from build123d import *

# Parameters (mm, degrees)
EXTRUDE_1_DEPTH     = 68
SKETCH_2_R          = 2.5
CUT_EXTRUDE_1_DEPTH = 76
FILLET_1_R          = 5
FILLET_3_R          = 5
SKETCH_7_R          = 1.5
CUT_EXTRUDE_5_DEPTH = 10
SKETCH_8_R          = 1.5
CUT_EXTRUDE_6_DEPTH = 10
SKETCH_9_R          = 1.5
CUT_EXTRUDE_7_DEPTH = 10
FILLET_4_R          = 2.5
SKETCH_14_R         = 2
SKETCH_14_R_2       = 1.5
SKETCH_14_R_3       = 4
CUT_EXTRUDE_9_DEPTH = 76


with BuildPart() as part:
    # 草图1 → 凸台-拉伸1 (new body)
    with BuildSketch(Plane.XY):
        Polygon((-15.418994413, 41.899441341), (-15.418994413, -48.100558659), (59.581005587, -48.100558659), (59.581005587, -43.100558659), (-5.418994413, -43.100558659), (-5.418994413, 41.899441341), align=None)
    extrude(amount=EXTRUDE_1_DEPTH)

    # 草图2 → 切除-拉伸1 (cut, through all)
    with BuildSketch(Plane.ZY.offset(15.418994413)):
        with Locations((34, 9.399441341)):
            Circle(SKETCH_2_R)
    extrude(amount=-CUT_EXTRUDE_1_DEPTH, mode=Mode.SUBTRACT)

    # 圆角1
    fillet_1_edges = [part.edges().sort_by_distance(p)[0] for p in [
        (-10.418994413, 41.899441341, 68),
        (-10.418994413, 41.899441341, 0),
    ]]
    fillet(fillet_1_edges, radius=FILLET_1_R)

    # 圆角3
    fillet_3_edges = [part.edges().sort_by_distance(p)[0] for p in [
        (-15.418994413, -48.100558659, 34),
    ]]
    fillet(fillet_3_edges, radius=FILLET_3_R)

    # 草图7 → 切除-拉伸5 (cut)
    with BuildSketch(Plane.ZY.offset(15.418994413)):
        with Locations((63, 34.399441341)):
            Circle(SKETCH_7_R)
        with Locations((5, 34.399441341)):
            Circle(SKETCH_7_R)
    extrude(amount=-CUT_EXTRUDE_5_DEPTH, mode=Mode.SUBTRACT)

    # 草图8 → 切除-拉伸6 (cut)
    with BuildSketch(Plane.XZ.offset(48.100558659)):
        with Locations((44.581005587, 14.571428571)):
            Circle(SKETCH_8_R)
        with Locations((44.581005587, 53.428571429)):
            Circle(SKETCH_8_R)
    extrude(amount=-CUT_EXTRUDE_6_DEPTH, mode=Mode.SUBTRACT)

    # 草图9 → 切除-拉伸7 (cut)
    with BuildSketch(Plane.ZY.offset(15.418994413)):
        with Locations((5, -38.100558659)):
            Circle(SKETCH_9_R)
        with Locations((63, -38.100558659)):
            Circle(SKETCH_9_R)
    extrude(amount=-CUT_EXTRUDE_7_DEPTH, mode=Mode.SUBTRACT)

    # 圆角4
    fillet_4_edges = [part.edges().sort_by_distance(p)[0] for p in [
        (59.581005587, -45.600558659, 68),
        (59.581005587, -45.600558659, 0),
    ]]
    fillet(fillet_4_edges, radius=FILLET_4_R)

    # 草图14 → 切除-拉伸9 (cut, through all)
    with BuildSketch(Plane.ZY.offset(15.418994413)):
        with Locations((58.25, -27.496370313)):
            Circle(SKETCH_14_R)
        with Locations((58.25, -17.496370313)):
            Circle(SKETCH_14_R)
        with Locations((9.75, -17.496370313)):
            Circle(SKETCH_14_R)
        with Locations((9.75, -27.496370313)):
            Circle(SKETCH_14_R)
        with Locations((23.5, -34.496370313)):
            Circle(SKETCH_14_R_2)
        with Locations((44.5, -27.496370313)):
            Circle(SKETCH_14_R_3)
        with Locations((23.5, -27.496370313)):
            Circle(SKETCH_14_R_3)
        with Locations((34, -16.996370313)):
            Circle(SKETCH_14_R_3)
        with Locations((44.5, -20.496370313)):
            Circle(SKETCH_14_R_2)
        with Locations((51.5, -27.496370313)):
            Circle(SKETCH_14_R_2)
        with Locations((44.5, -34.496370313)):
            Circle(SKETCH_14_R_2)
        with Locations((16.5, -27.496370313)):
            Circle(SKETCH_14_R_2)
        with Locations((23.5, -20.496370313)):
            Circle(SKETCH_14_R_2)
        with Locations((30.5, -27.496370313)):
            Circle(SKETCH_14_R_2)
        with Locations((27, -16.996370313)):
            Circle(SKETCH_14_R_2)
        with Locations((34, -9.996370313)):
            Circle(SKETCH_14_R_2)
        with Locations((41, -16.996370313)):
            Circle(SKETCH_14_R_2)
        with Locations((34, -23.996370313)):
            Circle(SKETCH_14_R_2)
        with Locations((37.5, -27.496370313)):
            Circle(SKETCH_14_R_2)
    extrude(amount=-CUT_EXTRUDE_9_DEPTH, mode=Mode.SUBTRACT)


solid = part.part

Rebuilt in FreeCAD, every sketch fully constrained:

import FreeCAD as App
import Part
import Sketcher
Q = App.Units.Quantity


def edges_at(feature, points):
    """Names of the edges that pass closest to the given points."""
    edges = feature.Shape.Edges
    near = lambda p: min(range(len(edges)), key=lambda i: edges[i].distToShape(Part.Vertex(*p))[0])
    return sorted({f"Edge{near(p) + 1}" for p in points})


def add_polygon(sketch, points):
    """Adds a closed chain of lines whose ends are joined by coincident constraints."""
    first, n = sketch.GeometryCount, len(points)
    for a, b in zip(points, points[1:] + points[:1]):
        sketch.addGeometry(Part.LineSegment(App.Vector(*a, 0), App.Vector(*b, 0)), False)
    for i in range(n):
        sketch.addConstraint(Sketcher.Constraint("Coincident", first + i, 2, first + (i + 1) % n, 1))

doc = App.newDocument("Part")
params = doc.addObject("Spreadsheet::Sheet", "Params")
for row, (alias, value) in enumerate([
    ("sketch1_width", "75 mm"),
    ("sketch1_width2", "65 mm"),
    ("sketch1_height", "90 mm"),
    ("sketch1_height2", "5 mm"),
    ("pad1_length", "68 mm"),
    ("sketch2_diameter", "5 mm"),
    ("fillet_radius", "5 mm"),
    ("fillet2_radius", "5 mm"),
    ("sketch3_diameter", "3 mm"),
    ("pocket2_length", "10 mm"),
    ("sketch4_diameter", "3 mm"),
    ("pocket3_length", "10 mm"),
    ("sketch5_diameter", "3 mm"),
    ("pocket4_length", "10 mm"),
    ("fillet3_radius", "2.5 mm"),
    ("sketch6_diameter", "4 mm"),
    ("sketch6_diameter2", "3 mm"),
    ("sketch6_diameter3", "8 mm"),
], start=1):
    params.set(f"A{row}", alias)
    params.set(f"B{row}", "=" + value)
    params.setAlias(f"B{row}", alias)

body = doc.addObject("PartDesign::Body", "Body")

# Sketch on XY plane
sketch1 = body.newObject("Sketcher::SketchObject", "Sketch")
sketch1.AttachmentSupport = (doc.getObject("XY_Plane"), [""])
sketch1.MapMode = "FlatFace"
add_polygon(sketch1, [(-15.418994, 41.899441), (-15.418994, -48.100559), (59.581006, -48.100559), (59.581006, -43.100559), (-5.418994, -43.100559), (-5.418994, 41.899441)])  # lines 0-5
sketch1.addConstraint([
    Sketcher.Constraint("Vertical", 0),
    Sketcher.Constraint("Horizontal", 1),
    Sketcher.Constraint("Vertical", 2),
    Sketcher.Constraint("Horizontal", 3),
    Sketcher.Constraint("Vertical", 4),
    Sketcher.Constraint("Horizontal", 5),
    Sketcher.Constraint("DistanceX", 1, 1, 1, 2, Q("75 mm")),
    Sketcher.Constraint("DistanceX", 3, 2, 3, 1, Q("65 mm")),
    Sketcher.Constraint("DistanceY", 0, 2, 0, 1, Q("90 mm")),
    Sketcher.Constraint("DistanceY", 2, 1, 2, 2, Q("5 mm")),
    Sketcher.Constraint("DistanceY", 0, 2, -1, 1, Q("48.100559 mm")),
    Sketcher.Constraint("DistanceX", 0, 2, -1, 1, Q("15.418994 mm")),
])
sketch1.setExpression("Constraints[12]", "Params.sketch1_width")
sketch1.setExpression("Constraints[13]", "Params.sketch1_width2")
sketch1.setExpression("Constraints[14]", "Params.sketch1_height")
sketch1.setExpression("Constraints[15]", "Params.sketch1_height2")
pad1 = body.newObject("PartDesign::Pad", "Pad")
pad1.Profile = sketch1
pad1.setExpression("Length", "Params.pad1_length")

# Sketch on YZ plane
sketch2 = body.newObject("Sketcher::SketchObject", "Sketch001")
sketch2.AttachmentSupport = (doc.getObject("YZ_Plane"), [""])
sketch2.MapMode = "FlatFace"
sketch2.AttachmentOffset = App.Placement(App.Vector(0, 0, -15.418994), App.Rotation())
sketch2.addGeometry(Part.Circle(App.Vector(9.399441, 34, 0), App.Vector(0, 0, 1), 2.5), False)
sketch2.addConstraint([
    Sketcher.Constraint("Diameter", 0, Q("5 mm")),
    Sketcher.Constraint("DistanceY", -1, 1, 0, 3, Q("34 mm")),
    Sketcher.Constraint("DistanceX", -1, 1, 0, 3, Q("9.399441 mm")),
])
sketch2.setExpression("Constraints[0]", "Params.sketch2_diameter")
pocket1 = body.newObject("PartDesign::Pocket", "Pocket")
pocket1.Profile = sketch2
pocket1.Type = "ThroughAll"
pocket1.Reversed = True
doc.recompute()

fillet = body.newObject("PartDesign::Fillet", "Fillet")
fillet.Base = (pocket1, edges_at(pocket1, [(-10.419, 41.899, 68), (-10.419, 41.899, 0)]))
fillet.setExpression("Radius", "Params.fillet_radius")
doc.recompute()

fillet2 = body.newObject("PartDesign::Fillet", "Fillet001")
fillet2.Base = (fillet, edges_at(fillet, [(-15.419, -48.101, 34)]))
fillet2.setExpression("Radius", "Params.fillet2_radius")

# Sketch on YZ plane
sketch3 = body.newObject("Sketcher::SketchObject", "Sketch002")
sketch3.AttachmentSupport = (doc.getObject("YZ_Plane"), [""])
sketch3.MapMode = "FlatFace"
sketch3.AttachmentOffset = App.Placement(App.Vector(0, 0, -15.418994), App.Rotation())
sketch3.addGeometry([
    Part.Circle(App.Vector(34.399441, 63, 0), App.Vector(0, 0, 1), 1.5),
    Part.Circle(App.Vector(34.399441, 5, 0), App.Vector(0, 0, 1), 1.5),
], False)
sketch3.addConstraint([
    Sketcher.Constraint("Equal", 0, 1),
    Sketcher.Constraint("Vertical", 0, 3, 1, 3),
    Sketcher.Constraint("Diameter", 0, Q("3 mm")),
    Sketcher.Constraint("DistanceY", -1, 1, 0, 3, Q("63 mm")),
    Sketcher.Constraint("DistanceY", -1, 1, 1, 3, Q("5 mm")),
    Sketcher.Constraint("DistanceX", -1, 1, 0, 3, Q("34.399441 mm")),
])
sketch3.setExpression("Constraints[2]", "Params.sketch3_diameter")
pocket2 = body.newObject("PartDesign::Pocket", "Pocket001")
pocket2.Profile = sketch3
pocket2.setExpression("Length", "Params.pocket2_length")
pocket2.Reversed = True

# Sketch on XZ plane
sketch4 = body.newObject("Sketcher::SketchObject", "Sketch003")
sketch4.AttachmentSupport = (doc.getObject("XZ_Plane"), [""])
sketch4.MapMode = "FlatFace"
sketch4.AttachmentOffset = App.Placement(App.Vector(0, 0, 48.100559), App.Rotation())
sketch4.addGeometry([
    Part.Circle(App.Vector(44.581006, 14.571429, 0), App.Vector(0, 0, 1), 1.5),
    Part.Circle(App.Vector(44.581006, 53.428571, 0), App.Vector(0, 0, 1), 1.5),
], False)
sketch4.addConstraint([
    Sketcher.Constraint("Equal", 0, 1),
    Sketcher.Constraint("Vertical", 0, 3, 1, 3),
    Sketcher.Constraint("Diameter", 0, Q("3 mm")),
    Sketcher.Constraint("DistanceY", -1, 1, 0, 3, Q("14.571429 mm")),
    Sketcher.Constraint("DistanceY", -1, 1, 1, 3, Q("53.428571 mm")),
    Sketcher.Constraint("DistanceX", -1, 1, 0, 3, Q("44.581006 mm")),
])
sketch4.setExpression("Constraints[2]", "Params.sketch4_diameter")
pocket3 = body.newObject("PartDesign::Pocket", "Pocket002")
pocket3.Profile = sketch4
pocket3.setExpression("Length", "Params.pocket3_length")

# Sketch on YZ plane
sketch5 = body.newObject("Sketcher::SketchObject", "Sketch004")
sketch5.AttachmentSupport = (doc.getObject("YZ_Plane"), [""])
sketch5.MapMode = "FlatFace"
sketch5.AttachmentOffset = App.Placement(App.Vector(0, 0, -15.418994), App.Rotation())
sketch5.addGeometry([
    Part.Circle(App.Vector(-38.100559, 5, 0), App.Vector(0, 0, 1), 1.5),
    Part.Circle(App.Vector(-38.100559, 63, 0), App.Vector(0, 0, 1), 1.5),
], False)
sketch5.addConstraint([
    Sketcher.Constraint("Equal", 0, 1),
    Sketcher.Constraint("Vertical", 0, 3, 1, 3),
    Sketcher.Constraint("Diameter", 0, Q("3 mm")),
    Sketcher.Constraint("DistanceY", -1, 1, 0, 3, Q("5 mm")),
    Sketcher.Constraint("DistanceY", -1, 1, 1, 3, Q("63 mm")),
    Sketcher.Constraint("DistanceX", 0, 3, -1, 1, Q("38.100559 mm")),
])
sketch5.setExpression("Constraints[2]", "Params.sketch5_diameter")
pocket4 = body.newObject("PartDesign::Pocket", "Pocket003")
pocket4.Profile = sketch5
pocket4.setExpression("Length", "Params.pocket4_length")
pocket4.Reversed = True
doc.recompute()

fillet3 = body.newObject("PartDesign::Fillet", "Fillet002")
fillet3.Base = (pocket4, edges_at(pocket4, [(59.581, -45.601, 68), (59.581, -45.601, 0)]))
fillet3.setExpression("Radius", "Params.fillet3_radius")

# Sketch on YZ plane
sketch6 = body.newObject("Sketcher::SketchObject", "Sketch005")
sketch6.AttachmentSupport = (doc.getObject("YZ_Plane"), [""])
sketch6.MapMode = "FlatFace"
sketch6.AttachmentOffset = App.Placement(App.Vector(0, 0, -15.418994), App.Rotation())
sketch6.addGeometry([
    Part.Circle(App.Vector(-27.49637, 58.25, 0), App.Vector(0, 0, 1), 2),  # 0
    Part.Circle(App.Vector(-17.49637, 58.25, 0), App.Vector(0, 0, 1), 2),  # 1
    Part.Circle(App.Vector(-17.49637, 9.75, 0), App.Vector(0, 0, 1), 2),  # 2
    Part.Circle(App.Vector(-27.49637, 9.75, 0), App.Vector(0, 0, 1), 2),  # 3
    Part.Circle(App.Vector(-34.49637, 23.5, 0), App.Vector(0, 0, 1), 1.5),  # 4
    Part.Circle(App.Vector(-27.49637, 44.5, 0), App.Vector(0, 0, 1), 4),  # 5
    Part.Circle(App.Vector(-27.49637, 23.5, 0), App.Vector(0, 0, 1), 4),  # 6
    Part.Circle(App.Vector(-16.99637, 34, 0), App.Vector(0, 0, 1), 4),  # 7
    Part.Circle(App.Vector(-20.49637, 44.5, 0), App.Vector(0, 0, 1), 1.5),  # 8
    Part.Circle(App.Vector(-27.49637, 51.5, 0), App.Vector(0, 0, 1), 1.5),  # 9
    Part.Circle(App.Vector(-34.49637, 44.5, 0), App.Vector(0, 0, 1), 1.5),  # 10
    Part.Circle(App.Vector(-27.49637, 16.5, 0), App.Vector(0, 0, 1), 1.5),  # 11
    Part.Circle(App.Vector(-20.49637, 23.5, 0), App.Vector(0, 0, 1), 1.5),  # 12
    Part.Circle(App.Vector(-27.49637, 30.5, 0), App.Vector(0, 0, 1), 1.5),  # 13
    Part.Circle(App.Vector(-16.99637, 27, 0), App.Vector(0, 0, 1), 1.5),  # 14
    Part.Circle(App.Vector(-9.99637, 34, 0), App.Vector(0, 0, 1), 1.5),  # 15
    Part.Circle(App.Vector(-16.99637, 41, 0), App.Vector(0, 0, 1), 1.5),  # 16
    Part.Circle(App.Vector(-23.99637, 34, 0), App.Vector(0, 0, 1), 1.5),  # 17
    Part.Circle(App.Vector(-27.49637, 37.5, 0), App.Vector(0, 0, 1), 1.5),  # 18
], False)
sketch6.addConstraint([
    Sketcher.Constraint("Equal", 0, 1),
    Sketcher.Constraint("Equal", 1, 2),
    Sketcher.Constraint("Equal", 2, 3),
    Sketcher.Constraint("Equal", 5, 6),
    Sketcher.Constraint("Equal", 6, 7),
    Sketcher.Constraint("Equal", 4, 8),
    Sketcher.Constraint("Equal", 8, 9),
    Sketcher.Constraint("Equal", 9, 10),
    Sketcher.Constraint("Equal", 10, 11),
    Sketcher.Constraint("Equal", 11, 12),
    Sketcher.Constraint("Equal", 12, 13),
    Sketcher.Constraint("Equal", 13, 14),
    Sketcher.Constraint("Equal", 14, 15),
    Sketcher.Constraint("Equal", 15, 16),
    Sketcher.Constraint("Equal", 16, 17),
    Sketcher.Constraint("Equal", 17, 18),
    Sketcher.Constraint("Horizontal", 0, 3, 1, 3),
    Sketcher.Constraint("Horizontal", 2, 3, 3, 3),
    Sketcher.Constraint("Horizontal", 4, 3, 6, 3),
    Sketcher.Constraint("Horizontal", 5, 3, 8, 3),
    Sketcher.Constraint("Horizontal", 8, 3, 10, 3),
    Sketcher.Constraint("Horizontal", 6, 3, 12, 3),
    Sketcher.Constraint("Horizontal", 7, 3, 15, 3),
    Sketcher.Constraint("Horizontal", 15, 3, 17, 3),
    Sketcher.Constraint("Vertical", 1, 3, 2, 3),
    Sketcher.Constraint("Vertical", 0, 3, 3, 3),
    Sketcher.Constraint("Vertical", 3, 3, 5, 3),
    Sketcher.Constraint("Vertical", 5, 3, 6, 3),
    Sketcher.Constraint("Vertical", 6, 3, 9, 3),
    Sketcher.Constraint("Vertical", 4, 3, 10, 3),
    Sketcher.Constraint("Vertical", 9, 3, 11, 3),
    Sketcher.Constraint("Vertical", 8, 3, 12, 3),
    Sketcher.Constraint("Vertical", 11, 3, 13, 3),
    Sketcher.Constraint("Vertical", 7, 3, 14, 3),
    Sketcher.Constraint("Vertical", 14, 3, 16, 3),
    Sketcher.Constraint("Vertical", 13, 3, 18, 3),
    Sketcher.Constraint("Diameter", 0, Q("4 mm")),
    Sketcher.Constraint("Diameter", 4, Q("3 mm")),
    Sketcher.Constraint("Diameter", 5, Q("8 mm")),
    Sketcher.Constraint("DistanceY", -1, 1, 7, 3, Q("34 mm")),
    Sketcher.Constraint("DistanceY", -1, 1, 14, 3, Q("27 mm")),
    Sketcher.Constraint("DistanceY", -1, 1, 16, 3, Q("41 mm")),
    Sketcher.Constraint("DistanceX", 0, 3, 1, 3, Q("10 mm")),
    Sketcher.Constraint("DistanceX", 4, 3, 3, 3, Q("7 mm")),
    Sketcher.Constraint("DistanceY", 4, 3, 5, 3, Q("21 mm")),
    Sketcher.Constraint("DistanceX", 5, 3, 8, 3, Q("7 mm")),
    Sketcher.Constraint("DistanceY", 5, 3, 9, 3, Q("7 mm")),
    Sketcher.Constraint("DistanceY", 11, 3, 6, 3, Q("7 mm")),
    Sketcher.Constraint("DistanceY", 6, 3, 13, 3, Q("7 mm")),
    Sketcher.Constraint("DistanceX", 7, 3, 15, 3, Q("7 mm")),
    Sketcher.Constraint("DistanceX", 17, 3, 7, 3, Q("7 mm")),
    Sketcher.Constraint("DistanceY", 18, 3, 5, 3, Q("7 mm")),
    Sketcher.Constraint("DistanceY", -1, 1, 4, 3, Q("23.5 mm")),
    Sketcher.Constraint("DistanceY", 2, 3, 1, 3, Q("48.5 mm")),
    Sketcher.Constraint("DistanceX", 5, 3, 7, 3, Q("10.5 mm")),
    Sketcher.Constraint("DistanceY", -1, 1, 0, 3, Q("58.25 mm")),
    Sketcher.Constraint("DistanceX", 0, 3, -1, 1, Q("27.49637 mm")),
])
sketch6.setExpression("Constraints[36]", "Params.sketch6_diameter")
sketch6.setExpression("Constraints[37]", "Params.sketch6_diameter2")
sketch6.setExpression("Constraints[38]", "Params.sketch6_diameter3")
pocket5 = body.newObject("PartDesign::Pocket", "Pocket004")
pocket5.Profile = sketch6
pocket5.Type = "ThroughAll"
pocket5.Reversed = True

doc.recompute()
